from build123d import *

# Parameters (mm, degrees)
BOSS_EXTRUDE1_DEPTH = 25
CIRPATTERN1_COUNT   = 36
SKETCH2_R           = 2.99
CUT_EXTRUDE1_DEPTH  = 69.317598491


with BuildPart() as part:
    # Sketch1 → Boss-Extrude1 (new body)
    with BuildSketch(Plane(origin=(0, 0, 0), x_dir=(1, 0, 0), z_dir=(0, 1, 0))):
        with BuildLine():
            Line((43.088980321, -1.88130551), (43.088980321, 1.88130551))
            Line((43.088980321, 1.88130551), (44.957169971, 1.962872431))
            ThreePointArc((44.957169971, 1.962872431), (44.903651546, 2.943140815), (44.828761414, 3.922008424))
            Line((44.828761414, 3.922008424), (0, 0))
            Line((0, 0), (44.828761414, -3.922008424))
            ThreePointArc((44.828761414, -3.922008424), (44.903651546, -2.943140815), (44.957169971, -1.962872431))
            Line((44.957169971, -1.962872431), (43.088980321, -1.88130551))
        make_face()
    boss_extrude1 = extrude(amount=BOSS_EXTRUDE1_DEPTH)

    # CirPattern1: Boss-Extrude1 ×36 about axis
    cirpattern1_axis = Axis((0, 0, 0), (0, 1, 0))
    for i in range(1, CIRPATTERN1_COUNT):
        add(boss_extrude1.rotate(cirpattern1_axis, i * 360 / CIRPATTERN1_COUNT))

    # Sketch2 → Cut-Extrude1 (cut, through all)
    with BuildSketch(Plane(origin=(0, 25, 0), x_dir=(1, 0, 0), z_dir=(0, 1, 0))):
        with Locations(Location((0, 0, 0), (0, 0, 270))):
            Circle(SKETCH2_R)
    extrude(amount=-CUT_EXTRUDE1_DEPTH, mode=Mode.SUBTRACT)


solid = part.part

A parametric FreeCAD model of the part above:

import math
import FreeCAD as App
import Part
import Sketcher
from FreeCAD import Vector
Q = App.Units.Quantity

doc = App.newDocument("Part")
params = doc.addObject("Spreadsheet::Sheet", "Params")
for row, (alias, value) in enumerate([
    ("sketch1_radius", "44.999998 mm"),
    ("pad1_length", "25 mm"),
    ("sketch2_diameter", "5.98 mm"),
], start=1):
    params.set(f"A{row}", alias)
    params.set(f"B{row}", "=" + value)
    params.setAlias(f"B{row}", alias)

body = doc.addObject("PartDesign::Body", "Body")

# Sketch on XZ plane
sketch1 = body.newObject("Sketcher::SketchObject", "Sketch")
sketch1.AttachmentSupport = (doc.getObject("XZ_Plane"), [""])
sketch1.MapMode = "FlatFace"
sketch1.addGeometry([
    Part.LineSegment(Vector(43.08898, 1.881306, 0), Vector(43.08898, -1.881306, 0)),  # 0
    Part.LineSegment(Vector(43.08898, -1.881306, 0), Vector(44.95717, -1.962872, 0)),  # 1
    Part.ArcOfCircle(Part.Circle(Vector(0.000002, 0, 0), Vector(0, 0, 1), 44.999998), math.radians(-5), math.radians(-2.5)),  # 2
    Part.LineSegment(Vector(44.828761, -3.922008, 0), Vector(0, 0, 0)),  # 3
    Part.LineSegment(Vector(0, 0, 0), Vector(44.828761, 3.922008, 0)),  # 4
    Part.ArcOfCircle(Part.Circle(Vector(0.000002, 0, 0), Vector(0, 0, 1), 44.999998), math.radians(2.5), math.radians(5)),  # 5
    Part.LineSegment(Vector(44.95717, 1.962872, 0), Vector(43.08898, 1.881306, 0)),  # 6
], False)
sketch1.addConstraint([
    Sketcher.Constraint("Coincident", 0, 2, 1, 1),
    Sketcher.Constraint("Coincident", 1, 2, 2, 2),
    Sketcher.Constraint("Coincident", 2, 1, 3, 1),
    Sketcher.Constraint("Coincident", 3, 2, 4, 1),
    Sketcher.Constraint("Coincident", 4, 2, 5, 2),
    Sketcher.Constraint("Coincident", 5, 1, 6, 1),
    Sketcher.Constraint("Coincident", 6, 2, 0, 1),
    Sketcher.Constraint("Vertical", 0),
    Sketcher.Constraint("Coincident", 2, 3, -1, 1),
    Sketcher.Constraint("Coincident", 5, 3, -1, 1),
    Sketcher.Constraint("Coincident", 3, 2, -1, 1),
    Sketcher.Constraint("Equal", 2, 5),
    Sketcher.Constraint("Vertical", 2, 1, 4, 2),
    Sketcher.Constraint("Vertical", 1, 2, 5, 1),
    Sketcher.Constraint("Equal", 1, 6),
    Sketcher.Constraint("Radius", 2, 44.999998),
    Sketcher.Constraint("Angle", 3, Q("175 deg")),
    Sketcher.Constraint("Angle", 1, Q("-2.5 deg")),
    Sketcher.Constraint("DistanceY", 0, 2, 0, 1, 3.762611),
    Sketcher.Constraint("Distance", 1, 1.869969),
])
sketch1.setExpression("Constraints[15]", "Params.sketch1_radius")
pad1 = body.newObject("PartDesign::Pad", "Pad")
pad1.Profile = sketch1
pad1.setExpression("Length", "Params.pad1_length")
pad1.Reversed = True
doc.recompute()

polarpattern = body.newObject("PartDesign::PolarPattern", "PolarPattern")
polarpattern.Originals = [pad1]
polarpattern.Axis = (doc.getObject("Y_Axis"), [""])
polarpattern.Angle = 360
polarpattern.Occurrences = 36
body.Tip = polarpattern

# Sketch on XZ plane
sketch2 = body.newObject("Sketcher::SketchObject", "Sketch001")
sketch2.AttachmentSupport = (doc.getObject("XZ_Plane"), [""])
sketch2.MapMode = "FlatFace"
sketch2.AttachmentOffset = App.Placement(Vector(0, 0, -25), App.Rotation())
sketch2.addGeometry(Part.Circle(Vector(0, 0, 0), Vector(0, 0, 1), 2.99), False)
sketch2.addConstraint([
    Sketcher.Constraint("Coincident", 0, 3, -1, 1),
    Sketcher.Constraint("Diameter", 0, 5.98),
])
sketch2.setExpression("Constraints[1]", "Params.sketch2_diameter")
pocket1 = body.newObject("PartDesign::Pocket", "Pocket")
pocket1.Profile = sketch2
pocket1.Type = "ThroughAll"
pocket1.Reversed = True

doc.recompute()
